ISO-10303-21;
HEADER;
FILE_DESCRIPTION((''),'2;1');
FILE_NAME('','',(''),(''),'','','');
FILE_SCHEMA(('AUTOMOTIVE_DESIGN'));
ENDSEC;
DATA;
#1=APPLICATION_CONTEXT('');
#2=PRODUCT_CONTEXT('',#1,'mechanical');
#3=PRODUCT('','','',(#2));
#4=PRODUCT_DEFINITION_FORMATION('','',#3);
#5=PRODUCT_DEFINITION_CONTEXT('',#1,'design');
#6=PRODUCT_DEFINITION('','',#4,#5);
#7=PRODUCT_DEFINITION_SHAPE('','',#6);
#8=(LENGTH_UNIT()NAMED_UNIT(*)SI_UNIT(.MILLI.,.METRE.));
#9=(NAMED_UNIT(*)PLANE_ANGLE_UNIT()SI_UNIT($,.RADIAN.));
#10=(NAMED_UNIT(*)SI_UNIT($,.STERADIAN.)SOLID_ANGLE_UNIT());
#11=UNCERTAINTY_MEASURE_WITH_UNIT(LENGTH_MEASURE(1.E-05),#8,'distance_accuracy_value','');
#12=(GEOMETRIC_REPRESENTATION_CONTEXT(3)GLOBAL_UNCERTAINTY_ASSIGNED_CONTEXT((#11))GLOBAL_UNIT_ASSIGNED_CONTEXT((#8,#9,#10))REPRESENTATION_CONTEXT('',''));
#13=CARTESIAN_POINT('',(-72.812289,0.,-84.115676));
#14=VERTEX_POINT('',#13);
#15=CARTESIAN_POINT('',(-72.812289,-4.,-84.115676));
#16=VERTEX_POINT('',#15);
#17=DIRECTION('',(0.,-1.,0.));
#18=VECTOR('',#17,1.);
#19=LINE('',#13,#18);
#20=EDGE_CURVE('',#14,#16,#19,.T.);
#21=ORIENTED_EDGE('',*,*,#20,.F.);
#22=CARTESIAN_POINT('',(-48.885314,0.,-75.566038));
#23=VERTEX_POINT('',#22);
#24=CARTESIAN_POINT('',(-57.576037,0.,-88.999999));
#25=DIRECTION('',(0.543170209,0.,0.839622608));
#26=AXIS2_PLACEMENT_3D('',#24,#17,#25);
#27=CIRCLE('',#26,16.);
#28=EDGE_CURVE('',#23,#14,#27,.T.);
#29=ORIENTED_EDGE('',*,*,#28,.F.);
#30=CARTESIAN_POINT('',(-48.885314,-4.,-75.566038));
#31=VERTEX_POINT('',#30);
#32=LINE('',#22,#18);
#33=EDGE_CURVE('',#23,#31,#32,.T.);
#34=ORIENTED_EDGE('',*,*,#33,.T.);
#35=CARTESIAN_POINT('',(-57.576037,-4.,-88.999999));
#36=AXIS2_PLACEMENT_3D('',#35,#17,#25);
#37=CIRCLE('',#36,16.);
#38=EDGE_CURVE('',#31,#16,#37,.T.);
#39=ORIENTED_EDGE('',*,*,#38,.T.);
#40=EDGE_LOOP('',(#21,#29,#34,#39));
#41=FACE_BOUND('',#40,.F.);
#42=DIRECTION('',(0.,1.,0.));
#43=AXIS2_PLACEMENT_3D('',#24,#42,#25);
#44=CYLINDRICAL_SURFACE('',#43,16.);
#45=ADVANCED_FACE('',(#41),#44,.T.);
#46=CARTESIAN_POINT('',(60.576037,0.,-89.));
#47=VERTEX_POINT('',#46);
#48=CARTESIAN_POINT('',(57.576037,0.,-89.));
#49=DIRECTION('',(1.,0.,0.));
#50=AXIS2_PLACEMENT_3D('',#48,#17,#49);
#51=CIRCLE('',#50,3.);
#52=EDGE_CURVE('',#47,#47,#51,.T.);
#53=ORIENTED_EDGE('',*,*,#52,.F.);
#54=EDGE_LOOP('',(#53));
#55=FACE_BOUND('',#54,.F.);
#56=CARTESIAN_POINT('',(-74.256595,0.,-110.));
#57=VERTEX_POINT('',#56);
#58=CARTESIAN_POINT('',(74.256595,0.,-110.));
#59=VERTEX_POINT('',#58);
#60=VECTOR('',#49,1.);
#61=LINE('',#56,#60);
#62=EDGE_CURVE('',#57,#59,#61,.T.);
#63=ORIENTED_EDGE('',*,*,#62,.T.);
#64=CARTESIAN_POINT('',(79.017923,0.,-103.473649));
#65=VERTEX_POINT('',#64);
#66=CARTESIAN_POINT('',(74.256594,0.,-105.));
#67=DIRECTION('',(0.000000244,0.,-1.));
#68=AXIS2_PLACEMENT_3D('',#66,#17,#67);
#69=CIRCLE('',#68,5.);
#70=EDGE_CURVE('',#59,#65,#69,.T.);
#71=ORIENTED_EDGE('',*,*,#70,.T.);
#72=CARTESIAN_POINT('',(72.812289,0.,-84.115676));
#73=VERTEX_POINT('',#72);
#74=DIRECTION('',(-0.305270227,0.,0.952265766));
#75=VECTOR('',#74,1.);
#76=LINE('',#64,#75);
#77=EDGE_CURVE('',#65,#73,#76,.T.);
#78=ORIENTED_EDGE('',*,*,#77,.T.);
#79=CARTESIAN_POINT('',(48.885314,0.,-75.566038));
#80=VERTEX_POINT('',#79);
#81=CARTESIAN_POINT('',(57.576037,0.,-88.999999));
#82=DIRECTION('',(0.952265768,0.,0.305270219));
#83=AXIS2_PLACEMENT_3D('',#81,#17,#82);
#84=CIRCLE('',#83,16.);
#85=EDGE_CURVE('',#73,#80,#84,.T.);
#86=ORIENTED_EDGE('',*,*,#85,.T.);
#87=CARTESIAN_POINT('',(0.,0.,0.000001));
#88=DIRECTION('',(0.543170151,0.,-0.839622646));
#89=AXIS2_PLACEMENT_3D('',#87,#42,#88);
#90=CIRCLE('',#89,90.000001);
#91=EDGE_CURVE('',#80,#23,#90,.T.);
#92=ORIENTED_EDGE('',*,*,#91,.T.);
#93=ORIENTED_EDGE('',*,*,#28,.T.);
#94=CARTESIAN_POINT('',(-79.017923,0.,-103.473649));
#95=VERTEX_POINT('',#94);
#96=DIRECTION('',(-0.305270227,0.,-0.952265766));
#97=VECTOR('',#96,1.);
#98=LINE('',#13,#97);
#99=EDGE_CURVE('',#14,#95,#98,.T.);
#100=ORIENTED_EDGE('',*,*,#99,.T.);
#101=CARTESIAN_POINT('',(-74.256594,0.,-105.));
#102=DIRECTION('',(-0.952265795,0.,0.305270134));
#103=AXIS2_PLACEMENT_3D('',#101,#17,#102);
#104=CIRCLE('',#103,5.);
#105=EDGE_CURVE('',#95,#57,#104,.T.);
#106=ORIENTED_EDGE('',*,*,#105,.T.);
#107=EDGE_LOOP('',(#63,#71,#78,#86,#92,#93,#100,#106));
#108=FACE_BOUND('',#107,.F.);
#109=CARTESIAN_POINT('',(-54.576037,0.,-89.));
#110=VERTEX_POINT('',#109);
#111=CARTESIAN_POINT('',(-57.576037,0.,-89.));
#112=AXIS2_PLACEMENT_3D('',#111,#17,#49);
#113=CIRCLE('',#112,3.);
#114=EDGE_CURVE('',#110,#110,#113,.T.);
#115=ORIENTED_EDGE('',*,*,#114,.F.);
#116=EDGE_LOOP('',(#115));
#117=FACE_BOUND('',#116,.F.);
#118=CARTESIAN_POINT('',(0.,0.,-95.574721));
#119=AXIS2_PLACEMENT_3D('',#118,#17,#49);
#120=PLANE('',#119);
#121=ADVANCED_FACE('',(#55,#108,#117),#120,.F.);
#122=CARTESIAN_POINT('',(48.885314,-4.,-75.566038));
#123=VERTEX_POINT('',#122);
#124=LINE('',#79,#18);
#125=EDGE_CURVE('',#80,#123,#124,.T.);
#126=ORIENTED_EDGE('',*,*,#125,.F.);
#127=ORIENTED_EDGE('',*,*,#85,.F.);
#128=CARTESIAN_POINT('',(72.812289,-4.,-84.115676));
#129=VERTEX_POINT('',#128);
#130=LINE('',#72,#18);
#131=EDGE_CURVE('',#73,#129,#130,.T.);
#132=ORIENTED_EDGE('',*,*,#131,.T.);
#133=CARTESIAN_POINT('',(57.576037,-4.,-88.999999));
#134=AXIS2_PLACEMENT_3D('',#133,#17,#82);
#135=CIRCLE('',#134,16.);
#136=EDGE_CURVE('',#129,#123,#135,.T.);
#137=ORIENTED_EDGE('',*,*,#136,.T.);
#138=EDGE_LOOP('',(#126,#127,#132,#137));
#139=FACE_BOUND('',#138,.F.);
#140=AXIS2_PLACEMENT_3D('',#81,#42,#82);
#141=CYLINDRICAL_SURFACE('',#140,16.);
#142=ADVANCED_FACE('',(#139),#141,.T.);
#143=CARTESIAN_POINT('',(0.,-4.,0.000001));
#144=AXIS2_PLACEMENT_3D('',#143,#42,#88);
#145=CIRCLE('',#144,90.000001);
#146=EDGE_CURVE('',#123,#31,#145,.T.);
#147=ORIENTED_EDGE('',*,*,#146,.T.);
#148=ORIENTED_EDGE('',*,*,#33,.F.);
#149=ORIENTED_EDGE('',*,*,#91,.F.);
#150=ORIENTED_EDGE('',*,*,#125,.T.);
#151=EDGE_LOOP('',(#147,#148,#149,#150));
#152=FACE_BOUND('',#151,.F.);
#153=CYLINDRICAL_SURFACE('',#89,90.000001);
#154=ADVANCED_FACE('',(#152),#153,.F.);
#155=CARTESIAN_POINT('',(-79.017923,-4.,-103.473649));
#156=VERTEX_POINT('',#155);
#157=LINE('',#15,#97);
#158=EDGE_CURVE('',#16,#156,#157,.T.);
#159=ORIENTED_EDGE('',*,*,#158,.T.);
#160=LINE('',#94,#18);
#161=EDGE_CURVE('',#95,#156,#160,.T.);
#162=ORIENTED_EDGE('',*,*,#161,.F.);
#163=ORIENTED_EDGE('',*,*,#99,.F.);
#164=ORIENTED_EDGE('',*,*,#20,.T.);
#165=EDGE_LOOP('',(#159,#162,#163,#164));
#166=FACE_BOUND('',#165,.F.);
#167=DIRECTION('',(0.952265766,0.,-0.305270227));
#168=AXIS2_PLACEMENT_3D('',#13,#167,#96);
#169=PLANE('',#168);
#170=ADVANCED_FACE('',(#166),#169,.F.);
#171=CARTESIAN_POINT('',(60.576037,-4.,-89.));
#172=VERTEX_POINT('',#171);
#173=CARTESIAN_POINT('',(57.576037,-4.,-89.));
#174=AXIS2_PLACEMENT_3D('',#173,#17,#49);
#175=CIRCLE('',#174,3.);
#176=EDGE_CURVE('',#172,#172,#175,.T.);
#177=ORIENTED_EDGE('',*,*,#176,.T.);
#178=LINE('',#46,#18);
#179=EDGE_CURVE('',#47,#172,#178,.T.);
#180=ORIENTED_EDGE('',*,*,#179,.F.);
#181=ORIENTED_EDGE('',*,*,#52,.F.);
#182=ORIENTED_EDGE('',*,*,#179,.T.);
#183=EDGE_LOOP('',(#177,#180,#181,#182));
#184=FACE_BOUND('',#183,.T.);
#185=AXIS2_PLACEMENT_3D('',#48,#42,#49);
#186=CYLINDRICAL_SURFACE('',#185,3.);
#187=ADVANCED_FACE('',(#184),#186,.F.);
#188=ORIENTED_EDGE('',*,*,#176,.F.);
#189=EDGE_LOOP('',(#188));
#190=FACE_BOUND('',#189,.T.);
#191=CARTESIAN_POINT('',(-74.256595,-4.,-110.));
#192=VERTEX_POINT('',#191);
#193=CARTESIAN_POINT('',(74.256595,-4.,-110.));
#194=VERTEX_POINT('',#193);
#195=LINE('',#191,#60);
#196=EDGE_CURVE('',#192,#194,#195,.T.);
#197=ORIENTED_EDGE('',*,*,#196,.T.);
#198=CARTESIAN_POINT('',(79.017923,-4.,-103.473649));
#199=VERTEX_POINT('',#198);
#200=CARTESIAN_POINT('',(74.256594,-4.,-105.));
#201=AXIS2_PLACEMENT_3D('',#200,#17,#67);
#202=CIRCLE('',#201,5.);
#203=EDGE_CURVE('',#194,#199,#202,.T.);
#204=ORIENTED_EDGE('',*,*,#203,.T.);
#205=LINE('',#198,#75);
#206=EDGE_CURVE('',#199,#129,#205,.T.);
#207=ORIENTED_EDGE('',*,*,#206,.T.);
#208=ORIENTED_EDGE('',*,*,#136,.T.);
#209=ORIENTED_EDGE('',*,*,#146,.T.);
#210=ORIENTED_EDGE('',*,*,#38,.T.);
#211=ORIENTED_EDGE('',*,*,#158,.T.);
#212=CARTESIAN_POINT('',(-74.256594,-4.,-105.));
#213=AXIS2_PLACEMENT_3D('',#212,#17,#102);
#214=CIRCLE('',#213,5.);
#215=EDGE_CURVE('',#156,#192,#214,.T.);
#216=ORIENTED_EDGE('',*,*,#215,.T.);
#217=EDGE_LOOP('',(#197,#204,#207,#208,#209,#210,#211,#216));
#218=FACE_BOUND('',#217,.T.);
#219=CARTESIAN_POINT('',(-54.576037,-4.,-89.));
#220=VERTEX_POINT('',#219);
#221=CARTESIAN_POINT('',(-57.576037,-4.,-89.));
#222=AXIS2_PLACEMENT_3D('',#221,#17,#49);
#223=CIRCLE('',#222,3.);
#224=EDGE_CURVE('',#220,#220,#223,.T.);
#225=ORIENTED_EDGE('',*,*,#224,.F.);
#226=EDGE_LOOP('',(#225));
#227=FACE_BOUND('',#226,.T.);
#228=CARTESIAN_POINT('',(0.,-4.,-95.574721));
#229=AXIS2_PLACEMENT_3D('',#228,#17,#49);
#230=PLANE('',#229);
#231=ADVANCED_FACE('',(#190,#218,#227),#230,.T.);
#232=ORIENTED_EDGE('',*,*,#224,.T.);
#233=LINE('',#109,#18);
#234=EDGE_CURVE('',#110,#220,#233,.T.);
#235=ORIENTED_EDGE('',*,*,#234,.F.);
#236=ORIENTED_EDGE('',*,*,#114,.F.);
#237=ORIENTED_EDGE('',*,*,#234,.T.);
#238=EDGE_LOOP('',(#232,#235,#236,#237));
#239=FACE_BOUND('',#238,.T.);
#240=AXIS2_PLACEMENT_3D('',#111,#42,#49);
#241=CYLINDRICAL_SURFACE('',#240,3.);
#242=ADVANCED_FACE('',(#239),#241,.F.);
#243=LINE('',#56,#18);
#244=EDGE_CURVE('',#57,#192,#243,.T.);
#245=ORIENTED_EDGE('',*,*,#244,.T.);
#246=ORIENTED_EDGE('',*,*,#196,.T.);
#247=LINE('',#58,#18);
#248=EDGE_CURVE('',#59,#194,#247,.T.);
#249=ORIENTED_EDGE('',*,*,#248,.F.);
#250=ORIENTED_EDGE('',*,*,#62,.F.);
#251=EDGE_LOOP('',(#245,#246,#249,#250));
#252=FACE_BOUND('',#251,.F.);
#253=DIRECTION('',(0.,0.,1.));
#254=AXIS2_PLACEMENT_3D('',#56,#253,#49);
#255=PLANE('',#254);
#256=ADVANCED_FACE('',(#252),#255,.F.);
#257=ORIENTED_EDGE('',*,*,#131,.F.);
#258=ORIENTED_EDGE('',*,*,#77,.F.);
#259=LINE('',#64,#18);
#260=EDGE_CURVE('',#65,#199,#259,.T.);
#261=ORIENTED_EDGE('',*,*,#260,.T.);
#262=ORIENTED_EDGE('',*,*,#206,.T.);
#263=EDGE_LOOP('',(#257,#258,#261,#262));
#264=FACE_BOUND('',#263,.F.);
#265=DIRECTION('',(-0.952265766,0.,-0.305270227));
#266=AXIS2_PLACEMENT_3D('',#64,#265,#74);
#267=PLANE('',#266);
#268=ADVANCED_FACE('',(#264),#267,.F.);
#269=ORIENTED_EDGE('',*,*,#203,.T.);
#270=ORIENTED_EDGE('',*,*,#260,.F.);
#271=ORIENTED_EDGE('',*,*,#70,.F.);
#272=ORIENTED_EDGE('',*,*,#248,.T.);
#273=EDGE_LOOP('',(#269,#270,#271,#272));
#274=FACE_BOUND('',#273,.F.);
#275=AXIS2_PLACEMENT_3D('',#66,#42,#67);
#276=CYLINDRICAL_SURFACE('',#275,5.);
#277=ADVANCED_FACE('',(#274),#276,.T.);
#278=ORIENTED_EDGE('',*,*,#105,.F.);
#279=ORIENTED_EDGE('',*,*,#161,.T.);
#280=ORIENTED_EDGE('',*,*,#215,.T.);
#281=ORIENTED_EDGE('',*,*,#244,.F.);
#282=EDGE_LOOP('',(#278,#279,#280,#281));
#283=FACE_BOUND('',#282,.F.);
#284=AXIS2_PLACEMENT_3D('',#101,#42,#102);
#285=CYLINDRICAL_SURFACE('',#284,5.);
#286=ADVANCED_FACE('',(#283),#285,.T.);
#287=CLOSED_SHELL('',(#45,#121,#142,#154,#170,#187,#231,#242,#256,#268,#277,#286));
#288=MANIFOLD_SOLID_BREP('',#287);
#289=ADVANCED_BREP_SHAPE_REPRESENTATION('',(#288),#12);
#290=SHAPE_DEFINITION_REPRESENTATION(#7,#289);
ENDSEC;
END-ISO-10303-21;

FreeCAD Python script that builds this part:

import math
import FreeCAD as App
import Part
import Sketcher
Q = App.Units.Quantity

doc = App.newDocument("Part")
body = doc.addObject("PartDesign::Body", "Body")

sketch1 = doc.addObject("Sketcher::SketchObject", "Sketch")
body.addObject(sketch1)
sketch1.AttachmentSupport = (doc.XZ_Plane, [""])
sketch1.MapMode = "FlatFace"
sketch1.addGeometry([
    Part.ArcOfCircle(Part.Circle(App.Vector(0, 0, 0), App.Vector(0, 0, 1), 90), math.radians(-123), math.radians(-57)),
    Part.ArcOfCircle(Part.Circle(App.Vector(-57.6, -89, 0), App.Vector(0, 0, 1), 16), math.radians(57), math.radians(162)),
    Part.LineSegment(App.Vector(-72.8, -84.1, 0), App.Vector(-79, -103.5, 0)),
    Part.ArcOfCircle(Part.Circle(App.Vector(-74.3, -105, 0), App.Vector(0, 0, 1), 5), math.radians(162), math.radians(270)),
    Part.LineSegment(App.Vector(-74.3, -110, 0), App.Vector(74.3, -110, 0)),
    Part.ArcOfCircle(Part.Circle(App.Vector(74.3, -105, 0), App.Vector(0, 0, 1), 5), math.radians(-90), math.radians(18)),
    Part.LineSegment(App.Vector(79, -103.5, 0), App.Vector(72.8, -84.1, 0)),
    Part.ArcOfCircle(Part.Circle(App.Vector(57.6, -89, 0), App.Vector(0, 0, 1), 16), math.radians(18), math.radians(123)),
    Part.Circle(App.Vector(-57.6, -89, 0), App.Vector(0, 0, 1), 3),
    Part.Circle(App.Vector(57.6, -89, 0), App.Vector(0, 0, 1), 3),
], False)
sketch1.addConstraint([
    Sketcher.Constraint("Tangent", 0, 1, 1, 1),
    Sketcher.Constraint("Tangent", 1, 2, 2, 1),
    Sketcher.Constraint("Tangent", 2, 2, 3, 1),
    Sketcher.Constraint("Tangent", 3, 2, 4, 1),
    Sketcher.Constraint("Tangent", 4, 2, 5, 1),
    Sketcher.Constraint("Tangent", 5, 2, 6, 1),
    Sketcher.Constraint("Tangent", 6, 2, 7, 1),
    Sketcher.Constraint("Tangent", 7, 2, 0, 2),
    Sketcher.Constraint("Horizontal", 4),
    Sketcher.Constraint("Coincident", 0, 3, -1, 1),
    Sketcher.Constraint("Coincident", 8, 3, 1, 3),
    Sketcher.Constraint("Coincident", 9, 3, 7, 3),
    Sketcher.Constraint("Equal", 3, 5),
    Sketcher.Constraint("Equal", 1, 7),
    Sketcher.Constraint("Equal", 8, 9),
    Sketcher.Constraint("Symmetric", 2, 2, 5, 2, -2),
    Sketcher.Constraint("Diameter", 8, Q("6 mm")),
    Sketcher.Constraint("Radius", 0, Q("90.000001 mm")),
    Sketcher.Constraint("Radius", 1, Q("16 mm")),
    Sketcher.Constraint("Radius", 3, Q("5 mm")),
    Sketcher.Constraint("DistanceY", 1, 3, -1, 1, Q("88.999999 mm")),
    Sketcher.Constraint("DistanceY", 3, 3, -1, 1, Q("105 mm")),
    Sketcher.Constraint("DistanceX", 4, 1, 4, 2, Q("148.51319 mm")),
])
pad1 = doc.addObject("PartDesign::Pad", "Pad")
body.addObject(pad1)
pad1.Profile = sketch1
pad1.Length = 4

doc.recompute()
